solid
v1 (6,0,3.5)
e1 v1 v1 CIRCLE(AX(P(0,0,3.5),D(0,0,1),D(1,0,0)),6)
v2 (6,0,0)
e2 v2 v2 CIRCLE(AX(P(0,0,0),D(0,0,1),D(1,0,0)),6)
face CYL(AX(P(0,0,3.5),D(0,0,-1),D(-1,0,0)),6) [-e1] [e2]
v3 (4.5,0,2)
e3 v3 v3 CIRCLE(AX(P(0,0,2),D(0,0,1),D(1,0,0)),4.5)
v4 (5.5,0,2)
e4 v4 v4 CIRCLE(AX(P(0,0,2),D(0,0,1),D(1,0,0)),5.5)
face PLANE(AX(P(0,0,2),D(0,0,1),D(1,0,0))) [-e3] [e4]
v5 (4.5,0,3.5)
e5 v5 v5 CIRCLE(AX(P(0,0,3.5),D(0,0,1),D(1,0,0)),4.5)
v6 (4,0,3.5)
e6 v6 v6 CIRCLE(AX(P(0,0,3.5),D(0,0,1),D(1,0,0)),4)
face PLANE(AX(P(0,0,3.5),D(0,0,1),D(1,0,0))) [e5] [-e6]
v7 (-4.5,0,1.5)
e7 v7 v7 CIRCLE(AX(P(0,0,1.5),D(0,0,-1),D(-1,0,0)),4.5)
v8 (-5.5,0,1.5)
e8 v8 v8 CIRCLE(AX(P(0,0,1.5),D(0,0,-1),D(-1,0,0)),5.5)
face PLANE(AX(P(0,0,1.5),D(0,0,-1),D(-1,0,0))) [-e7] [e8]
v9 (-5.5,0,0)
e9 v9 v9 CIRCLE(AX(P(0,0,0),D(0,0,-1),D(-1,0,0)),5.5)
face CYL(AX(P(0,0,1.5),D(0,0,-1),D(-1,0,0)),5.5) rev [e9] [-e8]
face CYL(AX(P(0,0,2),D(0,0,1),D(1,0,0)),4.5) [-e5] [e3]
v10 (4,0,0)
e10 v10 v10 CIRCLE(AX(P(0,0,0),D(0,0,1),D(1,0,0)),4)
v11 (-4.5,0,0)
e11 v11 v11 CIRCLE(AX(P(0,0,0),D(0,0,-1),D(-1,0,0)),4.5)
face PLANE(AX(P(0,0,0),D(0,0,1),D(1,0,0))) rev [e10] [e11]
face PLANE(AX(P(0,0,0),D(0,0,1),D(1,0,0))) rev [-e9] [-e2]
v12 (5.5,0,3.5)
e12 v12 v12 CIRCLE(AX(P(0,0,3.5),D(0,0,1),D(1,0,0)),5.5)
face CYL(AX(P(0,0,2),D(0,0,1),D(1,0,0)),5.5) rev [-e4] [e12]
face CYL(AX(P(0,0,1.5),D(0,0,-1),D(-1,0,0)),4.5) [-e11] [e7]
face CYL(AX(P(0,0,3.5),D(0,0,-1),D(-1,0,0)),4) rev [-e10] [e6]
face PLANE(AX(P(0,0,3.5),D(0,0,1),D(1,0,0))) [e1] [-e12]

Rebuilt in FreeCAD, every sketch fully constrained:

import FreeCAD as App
import Part
import Sketcher

V = App.Vector

doc = App.newDocument("Part")
body = doc.addObject("PartDesign::Body", "Body")

sketch1 = body.newObject("Sketcher::SketchObject", "Sketch")
sketch1.AttachmentSupport = (doc.getObject("XY_Plane"), [""])
sketch1.MapMode = "FlatFace"
sketch1.addGeometry([
    Part.Circle(V(0, 0, 0), V(0, 0, 1), 6),
    Part.Circle(V(0, 0, 0), V(0, 0, 1), 4),
], False)
sketch1.addConstraint([
    Sketcher.Constraint("Coincident", 0, 3, -1, 1),
    Sketcher.Constraint("Coincident", 1, 3, -1, 1),
    Sketcher.Constraint("Diameter", 0, 12.0),
    Sketcher.Constraint("Diameter", 1, 8.0),
])
pad1 = body.newObject("PartDesign::Pad", "Pad")
pad1.Profile = sketch1
pad1.Length = 3.5

sketch2 = body.newObject("Sketcher::SketchObject", "Sketch001")
sketch2.AttachmentSupport = (doc.getObject("XY_Plane"), [""])
sketch2.MapMode = "FlatFace"
sketch2.AttachmentOffset = App.Placement(V(0, 0, 3.5), App.Rotation())
sketch2.addGeometry([
    Part.Circle(V(0, 0, 0), V(0, 0, 1), 5.5),
    Part.Circle(V(0, 0, 0), V(0, 0, 1), 4.5),
], False)
sketch2.addConstraint([
    Sketcher.Constraint("Coincident", 0, 3, -1, 1),
    Sketcher.Constraint("Coincident", 1, 3, -1, 1),
    Sketcher.Constraint("Diameter", 0, 11.0),
    Sketcher.Constraint("Diameter", 1, 9.0),
])
pocket1 = body.newObject("PartDesign::Pocket", "Pocket")
pocket1.Profile = sketch2
pocket1.Length = 1.5

sketch3 = body.newObject("Sketcher::SketchObject", "Sketch002")
sketch3.AttachmentSupport = (doc.getObject("XY_Plane"), [""])
sketch3.MapMode = "FlatFace"
sketch3.AttachmentOffset = App.Placement(V(0, 0, 1.5), App.Rotation())
sketch3.addGeometry([
    Part.Circle(V(0, 0, 0), V(0, 0, 1), 5.5),
    Part.Circle(V(0, 0, 0), V(0, 0, 1), 4.5),
], False)
sketch3.addConstraint([
    Sketcher.Constraint("Coincident", 0, 3, -1, 1),
    Sketcher.Constraint("Coincident", 1, 3, -1, 1),
    Sketcher.Constraint("Diameter", 0, 11.0),
    Sketcher.Constraint("Diameter", 1, 9.0),
])
pocket2 = body.newObject("PartDesign::Pocket", "Pocket001")
pocket2.Profile = sketch3
pocket2.Length = 1.5

doc.recompute()
